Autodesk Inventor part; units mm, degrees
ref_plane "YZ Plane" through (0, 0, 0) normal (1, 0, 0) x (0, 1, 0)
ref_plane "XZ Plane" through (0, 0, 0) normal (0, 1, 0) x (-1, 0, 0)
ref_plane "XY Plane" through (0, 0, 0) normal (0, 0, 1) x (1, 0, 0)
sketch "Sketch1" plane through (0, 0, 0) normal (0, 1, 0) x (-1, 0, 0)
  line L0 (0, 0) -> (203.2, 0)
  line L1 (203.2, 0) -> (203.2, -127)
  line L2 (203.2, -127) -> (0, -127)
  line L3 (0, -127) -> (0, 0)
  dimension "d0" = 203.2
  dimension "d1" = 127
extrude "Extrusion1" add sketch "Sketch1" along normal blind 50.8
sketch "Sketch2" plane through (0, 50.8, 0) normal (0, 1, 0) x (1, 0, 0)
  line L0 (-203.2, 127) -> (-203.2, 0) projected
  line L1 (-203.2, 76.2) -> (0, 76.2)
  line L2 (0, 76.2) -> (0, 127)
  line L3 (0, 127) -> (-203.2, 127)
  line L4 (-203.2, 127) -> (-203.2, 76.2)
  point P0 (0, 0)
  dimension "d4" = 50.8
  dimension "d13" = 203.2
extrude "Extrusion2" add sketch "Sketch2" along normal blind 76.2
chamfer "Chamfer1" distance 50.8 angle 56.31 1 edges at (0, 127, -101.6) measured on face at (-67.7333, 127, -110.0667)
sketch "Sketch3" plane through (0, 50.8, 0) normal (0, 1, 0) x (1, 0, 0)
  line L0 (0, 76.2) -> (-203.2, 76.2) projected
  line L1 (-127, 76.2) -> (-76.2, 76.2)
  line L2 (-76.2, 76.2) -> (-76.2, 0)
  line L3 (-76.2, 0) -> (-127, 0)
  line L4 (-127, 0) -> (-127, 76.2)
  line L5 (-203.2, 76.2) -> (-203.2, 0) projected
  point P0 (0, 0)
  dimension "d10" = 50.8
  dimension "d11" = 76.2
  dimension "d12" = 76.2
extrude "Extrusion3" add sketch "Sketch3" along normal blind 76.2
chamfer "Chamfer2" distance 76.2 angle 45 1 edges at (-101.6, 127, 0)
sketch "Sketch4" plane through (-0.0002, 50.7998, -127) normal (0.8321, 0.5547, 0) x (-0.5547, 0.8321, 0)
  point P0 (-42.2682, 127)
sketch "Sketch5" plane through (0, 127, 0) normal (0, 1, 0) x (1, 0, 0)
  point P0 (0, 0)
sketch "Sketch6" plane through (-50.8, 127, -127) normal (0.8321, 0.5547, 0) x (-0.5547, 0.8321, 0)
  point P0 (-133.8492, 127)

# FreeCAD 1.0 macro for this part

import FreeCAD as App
import Part
import Sketcher
Q = App.Units.Quantity


def edges_at(feature, points):
    """Names of the edges that pass closest to the given points."""
    edges = feature.Shape.Edges
    near = lambda p: min(range(len(edges)), key=lambda i: edges[i].distToShape(Part.Vertex(*p))[0])
    return sorted({f"Edge{near(p) + 1}" for p in points})


def add_polygon(sketch, points):
    """Adds a closed chain of lines whose ends are joined by coincident constraints."""
    first, n = sketch.GeometryCount, len(points)
    for a, b in zip(points, points[1:] + points[:1]):
        sketch.addGeometry(Part.LineSegment(App.Vector(*a, 0), App.Vector(*b, 0)), False)
    for i in range(n):
        sketch.addConstraint(Sketcher.Constraint("Coincident", first + i, 2, first + (i + 1) % n, 1))

doc = App.newDocument("Part")
body = doc.addObject("PartDesign::Body", "Body")

# Sketch on XZ plane
sketch1 = body.newObject("Sketcher::SketchObject", "Sketch")
sketch1.AttachmentSupport = (doc.getObject("XZ_Plane"), [""])
sketch1.MapMode = "FlatFace"
add_polygon(sketch1, [(-203.2, 0), (0, 0), (0, -127), (-203.2, -127)])  # lines 0-3
sketch1.addConstraint(Sketcher.Constraint("Horizontal", 0))
sketch1.addConstraint(Sketcher.Constraint("Vertical", 1))
sketch1.addConstraint(Sketcher.Constraint("Horizontal", 2))
sketch1.addConstraint(Sketcher.Constraint("Vertical", 3))
sketch1.addConstraint(Sketcher.Constraint("Coincident", 0, 2, -1, 1))
sketch1.addConstraint(Sketcher.Constraint("DistanceX", 0, 1, 0, 2, Q("8 in")))
sketch1.addConstraint(Sketcher.Constraint("DistanceY", 1, 2, 1, 1, Q("5 in")))
pad1 = body.newObject("PartDesign::Pad", "Pad")
pad1.Profile = sketch1
pad1.Length = Q("2 in")
pad1.Reversed = True

# Sketch on XZ plane
sketch2 = body.newObject("Sketcher::SketchObject", "Sketch001")
sketch2.AttachmentSupport = (doc.getObject("XZ_Plane"), [""])
sketch2.MapMode = "FlatFace"
sketch2.AttachmentOffset = App.Placement(App.Vector(0, 0, -2 * 25.4), App.Rotation())
add_polygon(sketch2, [(0, -127), (-203.2, -127), (-203.2, -76.2), (0, -76.2)])  # lines 0-3
sketch2.addConstraint(Sketcher.Constraint("Horizontal", 0))
sketch2.addConstraint(Sketcher.Constraint("Vertical", 1))
sketch2.addConstraint(Sketcher.Constraint("Horizontal", 2))
sketch2.addConstraint(Sketcher.Constraint("Vertical", 3))
sketch2.addConstraint(Sketcher.Constraint("PointOnObject", 2, 2, -2))
sketch2.addConstraint(Sketcher.Constraint("DistanceX", 0, 2, 0, 1, Q("8 in")))
sketch2.addConstraint(Sketcher.Constraint("DistanceY", 1, 1, 1, 2, Q("2 in")))
sketch2.addConstraint(Sketcher.Constraint("DistanceY", 0, 2, -1, 1, Q("5 in")))
pad2 = body.newObject("PartDesign::Pad", "Pad001")
pad2.Profile = sketch2
pad2.Length = Q("3 in")
pad2.Reversed = True
doc.recompute()

chamfer = body.newObject("PartDesign::Chamfer", "Chamfer")
chamfer.Base = (pad2, edges_at(pad2, [(0, 127, -101.6)]))
chamfer.ChamferType = "Distance and Angle"
chamfer.Size = Q("2 in")
chamfer.Angle = 56.31

# Sketch on XZ plane
sketch3 = body.newObject("Sketcher::SketchObject", "Sketch002")
sketch3.AttachmentSupport = (doc.getObject("XZ_Plane"), [""])
sketch3.MapMode = "FlatFace"
sketch3.AttachmentOffset = App.Placement(App.Vector(0, 0, -2 * 25.4), App.Rotation())
add_polygon(sketch3, [(-76.2, 0), (-76.2, -76.2), (-127, -76.2), (-127, 0)])  # lines 0-3
sketch3.addConstraint(Sketcher.Constraint("Vertical", 0))
sketch3.addConstraint(Sketcher.Constraint("Horizontal", 1))
sketch3.addConstraint(Sketcher.Constraint("Vertical", 2))
sketch3.addConstraint(Sketcher.Constraint("Horizontal", 3))
sketch3.addConstraint(Sketcher.Constraint("PointOnObject", 2, 2, -1))
sketch3.addConstraint(Sketcher.Constraint("DistanceX", 1, 2, 1, 1, Q("2 in")))
sketch3.addConstraint(Sketcher.Constraint("DistanceY", 0, 2, 0, 1, Q("3 in")))
sketch3.addConstraint(Sketcher.Constraint("DistanceX", 0, 2, -1, 1, Q("3 in")))
pad3 = body.newObject("PartDesign::Pad", "Pad002")
pad3.Profile = sketch3
pad3.Length = Q("3 in")
pad3.Reversed = True
doc.recompute()

chamfer2 = body.newObject("PartDesign::Chamfer", "Chamfer001")
chamfer2.Base = (pad3, edges_at(pad3, [(-101.6, 127, 0)]))
chamfer2.Size = Q("3 in")

doc.recompute()
